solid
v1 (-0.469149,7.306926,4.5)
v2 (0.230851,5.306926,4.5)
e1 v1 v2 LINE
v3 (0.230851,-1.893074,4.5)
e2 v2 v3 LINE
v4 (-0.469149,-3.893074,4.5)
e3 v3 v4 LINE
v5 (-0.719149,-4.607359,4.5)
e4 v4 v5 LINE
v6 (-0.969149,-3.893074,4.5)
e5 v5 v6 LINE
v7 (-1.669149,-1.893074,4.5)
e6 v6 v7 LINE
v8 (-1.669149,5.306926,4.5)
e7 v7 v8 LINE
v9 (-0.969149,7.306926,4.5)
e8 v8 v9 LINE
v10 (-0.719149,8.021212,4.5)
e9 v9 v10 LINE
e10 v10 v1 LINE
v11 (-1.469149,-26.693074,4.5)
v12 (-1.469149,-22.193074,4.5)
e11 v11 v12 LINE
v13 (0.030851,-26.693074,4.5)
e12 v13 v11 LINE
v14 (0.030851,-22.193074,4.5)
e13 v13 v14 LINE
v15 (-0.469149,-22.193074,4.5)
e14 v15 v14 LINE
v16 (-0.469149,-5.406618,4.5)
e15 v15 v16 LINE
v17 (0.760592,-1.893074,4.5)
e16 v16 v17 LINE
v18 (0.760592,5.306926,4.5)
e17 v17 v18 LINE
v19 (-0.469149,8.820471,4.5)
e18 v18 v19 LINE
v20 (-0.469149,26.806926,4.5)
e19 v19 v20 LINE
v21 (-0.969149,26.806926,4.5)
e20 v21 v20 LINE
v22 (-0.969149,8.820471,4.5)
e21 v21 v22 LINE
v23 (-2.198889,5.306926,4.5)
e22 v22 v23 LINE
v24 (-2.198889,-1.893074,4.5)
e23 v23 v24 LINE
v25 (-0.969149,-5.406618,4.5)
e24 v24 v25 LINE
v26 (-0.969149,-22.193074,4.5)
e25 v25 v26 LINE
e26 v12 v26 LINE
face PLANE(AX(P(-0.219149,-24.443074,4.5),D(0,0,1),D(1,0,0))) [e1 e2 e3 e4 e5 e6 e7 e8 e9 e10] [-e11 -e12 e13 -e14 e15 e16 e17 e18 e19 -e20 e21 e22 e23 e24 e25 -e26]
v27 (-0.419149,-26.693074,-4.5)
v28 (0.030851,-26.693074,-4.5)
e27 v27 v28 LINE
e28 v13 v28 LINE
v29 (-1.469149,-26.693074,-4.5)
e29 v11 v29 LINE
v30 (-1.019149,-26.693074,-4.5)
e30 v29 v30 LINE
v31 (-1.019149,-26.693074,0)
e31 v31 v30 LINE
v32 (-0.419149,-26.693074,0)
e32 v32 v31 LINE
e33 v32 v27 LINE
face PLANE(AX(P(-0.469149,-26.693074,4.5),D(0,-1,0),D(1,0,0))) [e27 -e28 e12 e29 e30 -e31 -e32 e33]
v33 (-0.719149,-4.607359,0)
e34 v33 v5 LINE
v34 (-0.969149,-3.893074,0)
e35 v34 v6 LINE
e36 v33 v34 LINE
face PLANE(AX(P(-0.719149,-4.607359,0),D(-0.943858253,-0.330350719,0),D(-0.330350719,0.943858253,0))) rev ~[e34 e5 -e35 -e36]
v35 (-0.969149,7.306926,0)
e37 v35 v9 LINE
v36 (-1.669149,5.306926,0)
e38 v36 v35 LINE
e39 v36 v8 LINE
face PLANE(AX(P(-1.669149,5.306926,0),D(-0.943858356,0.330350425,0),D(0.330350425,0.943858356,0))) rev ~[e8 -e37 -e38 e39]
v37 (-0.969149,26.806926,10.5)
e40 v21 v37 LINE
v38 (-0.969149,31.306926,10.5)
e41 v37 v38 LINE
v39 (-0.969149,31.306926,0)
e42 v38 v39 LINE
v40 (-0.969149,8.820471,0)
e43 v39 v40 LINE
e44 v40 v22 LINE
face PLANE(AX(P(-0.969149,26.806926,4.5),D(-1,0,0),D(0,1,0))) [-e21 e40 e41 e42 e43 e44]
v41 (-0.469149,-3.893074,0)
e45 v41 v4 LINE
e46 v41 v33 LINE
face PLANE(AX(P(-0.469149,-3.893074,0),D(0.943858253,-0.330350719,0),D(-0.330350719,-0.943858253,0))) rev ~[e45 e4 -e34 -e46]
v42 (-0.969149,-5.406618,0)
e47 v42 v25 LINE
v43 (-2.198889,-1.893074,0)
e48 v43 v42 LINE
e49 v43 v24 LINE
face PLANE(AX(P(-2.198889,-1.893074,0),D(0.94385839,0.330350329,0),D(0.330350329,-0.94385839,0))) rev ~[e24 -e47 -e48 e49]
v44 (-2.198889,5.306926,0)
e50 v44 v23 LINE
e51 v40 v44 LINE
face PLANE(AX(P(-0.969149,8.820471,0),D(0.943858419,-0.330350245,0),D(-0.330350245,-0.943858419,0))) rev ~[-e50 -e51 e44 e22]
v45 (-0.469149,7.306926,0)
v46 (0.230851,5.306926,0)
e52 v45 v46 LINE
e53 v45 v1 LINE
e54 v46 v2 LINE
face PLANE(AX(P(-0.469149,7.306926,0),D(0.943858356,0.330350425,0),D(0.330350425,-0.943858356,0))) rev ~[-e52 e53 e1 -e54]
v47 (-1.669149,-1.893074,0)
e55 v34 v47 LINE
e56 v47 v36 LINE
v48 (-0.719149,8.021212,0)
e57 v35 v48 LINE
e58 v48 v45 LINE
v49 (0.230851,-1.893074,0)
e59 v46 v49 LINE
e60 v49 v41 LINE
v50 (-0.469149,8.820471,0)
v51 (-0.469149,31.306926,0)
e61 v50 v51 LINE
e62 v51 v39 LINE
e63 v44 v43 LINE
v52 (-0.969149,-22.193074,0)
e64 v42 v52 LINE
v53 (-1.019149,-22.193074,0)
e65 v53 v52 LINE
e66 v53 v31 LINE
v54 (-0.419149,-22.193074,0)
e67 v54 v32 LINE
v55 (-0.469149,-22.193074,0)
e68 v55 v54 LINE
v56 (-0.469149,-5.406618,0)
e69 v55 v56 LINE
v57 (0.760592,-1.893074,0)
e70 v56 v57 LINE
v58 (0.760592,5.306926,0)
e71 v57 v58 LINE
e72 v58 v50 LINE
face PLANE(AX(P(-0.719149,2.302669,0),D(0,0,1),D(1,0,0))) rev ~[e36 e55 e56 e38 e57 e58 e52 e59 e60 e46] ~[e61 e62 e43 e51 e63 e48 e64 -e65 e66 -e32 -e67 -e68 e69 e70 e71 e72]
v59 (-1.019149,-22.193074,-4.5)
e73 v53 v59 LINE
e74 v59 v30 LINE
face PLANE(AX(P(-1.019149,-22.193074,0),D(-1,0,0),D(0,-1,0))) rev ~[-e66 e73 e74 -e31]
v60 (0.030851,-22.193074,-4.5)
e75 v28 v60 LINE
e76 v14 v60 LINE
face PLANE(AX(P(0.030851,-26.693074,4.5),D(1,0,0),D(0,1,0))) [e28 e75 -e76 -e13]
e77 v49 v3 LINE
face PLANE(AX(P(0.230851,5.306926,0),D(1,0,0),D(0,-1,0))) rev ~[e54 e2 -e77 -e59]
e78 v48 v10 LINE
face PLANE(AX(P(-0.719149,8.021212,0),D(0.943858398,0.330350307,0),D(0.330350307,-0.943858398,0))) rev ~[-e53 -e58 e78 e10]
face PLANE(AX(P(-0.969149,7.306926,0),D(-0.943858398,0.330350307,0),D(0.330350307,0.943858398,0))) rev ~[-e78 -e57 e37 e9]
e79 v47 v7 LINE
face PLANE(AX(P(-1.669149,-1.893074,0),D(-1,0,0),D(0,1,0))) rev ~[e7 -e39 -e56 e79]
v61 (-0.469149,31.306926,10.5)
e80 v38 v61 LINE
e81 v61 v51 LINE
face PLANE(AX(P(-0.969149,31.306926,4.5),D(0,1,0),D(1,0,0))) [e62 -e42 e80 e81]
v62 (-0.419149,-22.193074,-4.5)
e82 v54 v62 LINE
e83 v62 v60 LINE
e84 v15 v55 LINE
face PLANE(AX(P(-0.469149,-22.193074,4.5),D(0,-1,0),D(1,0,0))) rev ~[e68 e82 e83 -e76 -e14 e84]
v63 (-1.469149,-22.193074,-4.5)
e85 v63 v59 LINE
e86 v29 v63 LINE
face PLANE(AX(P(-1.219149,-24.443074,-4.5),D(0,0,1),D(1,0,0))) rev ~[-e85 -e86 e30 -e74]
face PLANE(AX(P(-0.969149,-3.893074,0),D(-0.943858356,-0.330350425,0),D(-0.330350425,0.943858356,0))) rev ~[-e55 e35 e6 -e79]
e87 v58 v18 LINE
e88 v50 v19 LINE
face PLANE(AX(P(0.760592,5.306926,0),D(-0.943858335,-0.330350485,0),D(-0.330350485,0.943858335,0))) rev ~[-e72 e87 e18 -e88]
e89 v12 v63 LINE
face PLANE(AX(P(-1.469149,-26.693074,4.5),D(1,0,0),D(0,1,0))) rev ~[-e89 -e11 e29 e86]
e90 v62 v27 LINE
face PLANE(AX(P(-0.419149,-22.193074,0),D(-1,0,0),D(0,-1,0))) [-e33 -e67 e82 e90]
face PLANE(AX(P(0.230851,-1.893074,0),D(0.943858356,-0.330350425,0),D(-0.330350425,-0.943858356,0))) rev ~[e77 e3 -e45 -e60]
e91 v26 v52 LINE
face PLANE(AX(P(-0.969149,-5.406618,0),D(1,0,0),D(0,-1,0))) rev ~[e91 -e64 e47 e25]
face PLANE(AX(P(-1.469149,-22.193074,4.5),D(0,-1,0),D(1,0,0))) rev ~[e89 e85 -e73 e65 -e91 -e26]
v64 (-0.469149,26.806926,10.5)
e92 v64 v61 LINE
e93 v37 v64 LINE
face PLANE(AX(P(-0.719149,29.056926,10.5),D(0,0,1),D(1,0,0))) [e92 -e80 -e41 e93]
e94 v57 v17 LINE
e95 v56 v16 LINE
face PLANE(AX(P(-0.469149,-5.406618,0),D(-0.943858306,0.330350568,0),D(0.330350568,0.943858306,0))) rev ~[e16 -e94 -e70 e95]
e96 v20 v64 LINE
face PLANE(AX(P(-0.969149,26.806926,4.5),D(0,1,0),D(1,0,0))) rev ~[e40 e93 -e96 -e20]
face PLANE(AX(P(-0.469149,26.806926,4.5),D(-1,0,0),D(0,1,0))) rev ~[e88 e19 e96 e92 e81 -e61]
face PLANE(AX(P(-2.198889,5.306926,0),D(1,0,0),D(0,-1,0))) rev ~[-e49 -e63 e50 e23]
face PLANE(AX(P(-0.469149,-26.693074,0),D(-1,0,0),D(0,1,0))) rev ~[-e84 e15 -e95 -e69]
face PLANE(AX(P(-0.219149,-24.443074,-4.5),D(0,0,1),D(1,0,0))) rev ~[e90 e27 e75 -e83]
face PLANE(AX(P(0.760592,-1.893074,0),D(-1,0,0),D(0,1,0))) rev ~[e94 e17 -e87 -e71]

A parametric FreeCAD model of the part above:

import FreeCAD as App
import Part
import Sketcher

doc = App.newDocument("Part")
body = doc.addObject("PartDesign::Body", "Body")

# Sketch on XY plane
sketch1 = body.newObject("Sketcher::SketchObject", "Sketch")
sketch1.AttachmentSupport = (doc.getObject("XY_Plane"), [""])
sketch1.MapMode = "FlatFace"
sketch1.addGeometry([
    Part.LineSegment(App.Vector(-0.469149, 31.306926, 0), App.Vector(-0.969149, 31.306926, 0)),  # 0
    Part.LineSegment(App.Vector(-0.969149, 31.306926, 0), App.Vector(-0.969149, 8.820471, 0)),  # 1
    Part.LineSegment(App.Vector(-0.969149, 8.820471, 0), App.Vector(-2.198889, 5.306926, 0)),  # 2
    Part.LineSegment(App.Vector(-2.198889, 5.306926, 0), App.Vector(-2.198889, -1.893074, 0)),  # 3
    Part.LineSegment(App.Vector(-2.198889, -1.893074, 0), App.Vector(-0.969149, -5.406618, 0)),  # 4
    Part.LineSegment(App.Vector(-0.969149, -5.406618, 0), App.Vector(-0.969149, -26.693074, 0)),  # 5
    Part.LineSegment(App.Vector(-0.969149, -26.693074, 0), App.Vector(-0.469149, -26.693074, 0)),  # 6
    Part.LineSegment(App.Vector(-0.469149, -26.693074, 0), App.Vector(-0.469149, -5.406618, 0)),  # 7
    Part.LineSegment(App.Vector(-0.469149, -5.406618, 0), App.Vector(0.760592, -1.893074, 0)),  # 8
    Part.LineSegment(App.Vector(0.760592, -1.893074, 0), App.Vector(0.760592, 5.306926, 0)),  # 9
    Part.LineSegment(App.Vector(0.760592, 5.306926, 0), App.Vector(-0.469149, 8.820471, 0)),  # 10
    Part.LineSegment(App.Vector(-0.469149, 8.820471, 0), App.Vector(-0.469149, 31.306926, 0)),  # 11
    Part.LineSegment(App.Vector(-0.969149, -3.893074, 0), App.Vector(-1.669149, -1.893074, 0)),  # 12
    Part.LineSegment(App.Vector(-1.669149, -1.893074, 0), App.Vector(-1.669149, 5.306926, 0)),  # 13
    Part.LineSegment(App.Vector(-1.669149, 5.306926, 0), App.Vector(-0.969149, 7.306926, 0)),  # 14
    Part.LineSegment(App.Vector(-0.969149, 7.306926, 0), App.Vector(-0.719149, 8.021212, 0)),  # 15
    Part.LineSegment(App.Vector(-0.719149, 8.021212, 0), App.Vector(-0.469149, 7.306926, 0)),  # 16
    Part.LineSegment(App.Vector(-0.469149, 7.306926, 0), App.Vector(0.230851, 5.306926, 0)),  # 17
    Part.LineSegment(App.Vector(0.230851, 5.306926, 0), App.Vector(0.230851, -1.893074, 0)),  # 18
    Part.LineSegment(App.Vector(0.230851, -1.893074, 0), App.Vector(-0.469149, -3.893074, 0)),  # 19
    Part.LineSegment(App.Vector(-0.469149, -3.893074, 0), App.Vector(-0.719149, -4.607359, 0)),  # 20
    Part.LineSegment(App.Vector(-0.719149, -4.607359, 0), App.Vector(-0.969149, -3.893074, 0)),  # 21
], False)
sketch1.addConstraint([
    Sketcher.Constraint("Coincident", 0, 2, 1, 1),
    Sketcher.Constraint("Coincident", 1, 2, 2, 1),
    Sketcher.Constraint("Coincident", 2, 2, 3, 1),
    Sketcher.Constraint("Coincident", 3, 2, 4, 1),
    Sketcher.Constraint("Coincident", 4, 2, 5, 1),
    Sketcher.Constraint("Coincident", 5, 2, 6, 1),
    Sketcher.Constraint("Coincident", 6, 2, 7, 1),
    Sketcher.Constraint("Coincident", 7, 2, 8, 1),
    Sketcher.Constraint("Coincident", 8, 2, 9, 1),
    Sketcher.Constraint("Coincident", 9, 2, 10, 1),
    Sketcher.Constraint("Coincident", 10, 2, 11, 1),
    Sketcher.Constraint("Coincident", 11, 2, 0, 1),
    Sketcher.Constraint("Coincident", 12, 2, 13, 1),
    Sketcher.Constraint("Coincident", 13, 2, 14, 1),
    Sketcher.Constraint("Coincident", 14, 2, 15, 1),
    Sketcher.Constraint("Coincident", 15, 2, 16, 1),
    Sketcher.Constraint("Coincident", 16, 2, 17, 1),
    Sketcher.Constraint("Coincident", 17, 2, 18, 1),
    Sketcher.Constraint("Coincident", 18, 2, 19, 1),
    Sketcher.Constraint("Coincident", 19, 2, 20, 1),
    Sketcher.Constraint("Coincident", 20, 2, 21, 1),
    Sketcher.Constraint("Coincident", 21, 2, 12, 1),
    Sketcher.Constraint("Horizontal", 0),
    Sketcher.Constraint("Vertical", 1),
    Sketcher.Constraint("Vertical", 3),
    Sketcher.Constraint("Vertical", 5),
    Sketcher.Constraint("Horizontal", 6),
    Sketcher.Constraint("Vertical", 7),
    Sketcher.Constraint("Vertical", 9),
    Sketcher.Constraint("Vertical", 11),
    Sketcher.Constraint("Vertical", 13),
    Sketcher.Constraint("Vertical", 18),
    Sketcher.Constraint("Parallel", 2, 8),
    Sketcher.Constraint("Parallel", 4, 10),
    Sketcher.Constraint("Parallel", 10, 12),
    Sketcher.Constraint("Parallel", 8, 14),
    Sketcher.Constraint("Parallel", 14, 15),
    Sketcher.Constraint("Parallel", 12, 16),
    Sketcher.Constraint("Parallel", 16, 17),
    Sketcher.Constraint("Parallel", 15, 19),
    Sketcher.Constraint("Parallel", 19, 20),
    Sketcher.Constraint("Parallel", 17, 21),
    Sketcher.Constraint("Horizontal", 4, 2, 7, 2),
    Sketcher.Constraint("Horizontal", 3, 2, 8, 2),
    Sketcher.Constraint("Horizontal", 2, 2, 9, 2),
    Sketcher.Constraint("Horizontal", 1, 2, 10, 2),
    Sketcher.Constraint("Horizontal", 8, 2, 12, 2),
    Sketcher.Constraint("Horizontal", 9, 2, 13, 2),
    Sketcher.Constraint("Horizontal", 14, 2, 16, 2),
    Sketcher.Constraint("Horizontal", 13, 2, 17, 2),
    Sketcher.Constraint("Horizontal", 12, 2, 18, 2),
    Sketcher.Constraint("Horizontal", 19, 2, 21, 2),
    Sketcher.Constraint("Vertical", 1, 2, 4, 2),
    Sketcher.Constraint("Vertical", 7, 2, 10, 2),
    Sketcher.Constraint("Vertical", 5, 2, 14, 2),
    Sketcher.Constraint("Vertical", 11, 2, 16, 2),
    Sketcher.Constraint("Vertical", 16, 2, 19, 2),
    Sketcher.Constraint("DistanceX", 0, 2, 0, 1, 0.5),
    Sketcher.Constraint("DistanceY", 3, 2, 3, 1, 7.2),
    Sketcher.Constraint("DistanceY", 2, 2, 0, 2, 26.0),
    Sketcher.Constraint("DistanceY", 5, 2, 2, 2, 32.0),
    Sketcher.Constraint("DistanceY", 13, 2, 14, 2, 2.0),
    Sketcher.Constraint("DistanceX", 12, 2, 4, 2, 0.7),
    Sketcher.Constraint("DistanceY", 1, 2, 1, 1, 22.486455),
    Sketcher.Constraint("DistanceX", 0, 2, -1, 1, 0.969149),
    Sketcher.Constraint("DistanceY", -1, 1, 1, 2, 8.820471),
])
pad1 = body.newObject("PartDesign::Pad", "Pad")
pad1.Profile = sketch1
pad1.Length = 4.5

# Sketch on XY plane
sketch2 = body.newObject("Sketcher::SketchObject", "Sketch001")
sketch2.AttachmentSupport = (doc.getObject("XY_Plane"), [""])
sketch2.MapMode = "FlatFace"
sketch2.AttachmentOffset = App.Placement(App.Vector(0, 0, 4.5), App.Rotation())
sketch2.addGeometry([
    Part.LineSegment(App.Vector(-0.969149, 31.306926, 0), App.Vector(-0.969149, 26.806926, 0)),
    Part.LineSegment(App.Vector(-0.969149, 26.806926, 0), App.Vector(-0.469149, 26.806926, 0)),
    Part.LineSegment(App.Vector(-0.469149, 26.806926, 0), App.Vector(-0.469149, 31.306926, 0)),
    Part.LineSegment(App.Vector(-0.469149, 31.306926, 0), App.Vector(-0.969149, 31.306926, 0)),
], False)
sketch2.addConstraint([
    Sketcher.Constraint("Coincident", 0, 2, 1, 1),
    Sketcher.Constraint("Coincident", 1, 2, 2, 1),
    Sketcher.Constraint("Coincident", 2, 2, 3, 1),
    Sketcher.Constraint("Coincident", 3, 2, 0, 1),
    Sketcher.Constraint("Vertical", 0),
    Sketcher.Constraint("Horizontal", 1),
    Sketcher.Constraint("Vertical", 2),
    Sketcher.Constraint("Horizontal", 3),
    Sketcher.Constraint("DistanceX", 1, 1, 1, 2, 0.5),
    Sketcher.Constraint("DistanceY", 0, 2, 0, 1, 4.5),
    Sketcher.Constraint("DistanceX", 0, 2, -1, 1, 0.969149),
    Sketcher.Constraint("DistanceY", -1, 1, 0, 2, 26.806926),
])
pad2 = body.newObject("PartDesign::Pad", "Pad001")
pad2.Profile = sketch2
pad2.Length = 6

# Sketch on XY plane
sketch3 = body.newObject("Sketcher::SketchObject", "Sketch002")
sketch3.AttachmentSupport = (doc.getObject("XY_Plane"), [""])
sketch3.MapMode = "FlatFace"
sketch3.AttachmentOffset = App.Placement(App.Vector(0, 0, 4.5), App.Rotation())
sketch3.addGeometry([
    Part.LineSegment(App.Vector(-0.469149, -22.193074, 0), App.Vector(-0.469149, -26.693074, 0)),  # 0
    Part.LineSegment(App.Vector(-0.469149, -26.693074, 0), App.Vector(0.030851, -26.693074, 0)),  # 1
    Part.LineSegment(App.Vector(0.030851, -26.693074, 0), App.Vector(0.030851, -22.193074, 0)),  # 2
    Part.LineSegment(App.Vector(0.030851, -22.193074, 0), App.Vector(-0.469149, -22.193074, 0)),  # 3
    Part.LineSegment(App.Vector(-1.469149, -22.193074, 0), App.Vector(-1.469149, -26.693074, 0)),  # 4
    Part.LineSegment(App.Vector(-1.469149, -26.693074, 0), App.Vector(-0.969149, -26.693074, 0)),  # 5
    Part.LineSegment(App.Vector(-0.969149, -26.693074, 0), App.Vector(-0.969149, -22.193074, 0)),  # 6
    Part.LineSegment(App.Vector(-0.969149, -22.193074, 0), App.Vector(-1.469149, -22.193074, 0)),  # 7
], False)
sketch3.addConstraint([
    Sketcher.Constraint("Coincident", 0, 2, 1, 1),
    Sketcher.Constraint("Coincident", 1, 2, 2, 1),
    Sketcher.Constraint("Coincident", 2, 2, 3, 1),
    Sketcher.Constraint("Coincident", 3, 2, 0, 1),
    Sketcher.Constraint("Coincident", 4, 2, 5, 1),
    Sketcher.Constraint("Coincident", 5, 2, 6, 1),
    Sketcher.Constraint("Coincident", 6, 2, 7, 1),
    Sketcher.Constraint("Coincident", 7, 2, 4, 1),
    Sketcher.Constraint("Vertical", 0),
    Sketcher.Constraint("Horizontal", 1),
    Sketcher.Constraint("Vertical", 2),
    Sketcher.Constraint("Horizontal", 3),
    Sketcher.Constraint("Vertical", 4),
    Sketcher.Constraint("Horizontal", 5),
    Sketcher.Constraint("Vertical", 6),
    Sketcher.Constraint("Horizontal", 7),
    Sketcher.Constraint("Horizontal", 1, 2, 4, 2),
    Sketcher.Constraint("Horizontal", 3, 2, 6, 2),
    Sketcher.Constraint("Equal", 3, 5),
    Sketcher.Constraint("DistanceX", 1, 1, 1, 2, 0.5),
    Sketcher.Constraint("DistanceY", 0, 2, 0, 1, 4.5),
    Sketcher.Constraint("DistanceX", 4, 2, 0, 2, 1.0),
    Sketcher.Constraint("DistanceX", 0, 2, -1, 1, 0.469149),
    Sketcher.Constraint("DistanceY", 0, 2, -1, 1, 26.693074),
])
pad3 = body.newObject("PartDesign::Pad", "Pad002")
pad3.Profile = sketch3
pad3.Length = 9
pad3.Reversed = True

# Sketch on XY plane
sketch4 = body.newObject("Sketcher::SketchObject", "Sketch003")
sketch4.AttachmentSupport = (doc.getObject("XY_Plane"), [""])
sketch4.MapMode = "FlatFace"
sketch4.addGeometry([
    Part.LineSegment(App.Vector(-1.019149, -26.693074, 0), App.Vector(-1.019149, -22.193074, 0)),
    Part.LineSegment(App.Vector(-1.019149, -22.193074, 0), App.Vector(-0.419149, -22.193074, 0)),
    Part.LineSegment(App.Vector(-0.419149, -22.193074, 0), App.Vector(-0.419149, -26.693074, 0)),
    Part.LineSegment(App.Vector(-0.419149, -26.693074, 0), App.Vector(-1.019149, -26.693074, 0)),
], False)
sketch4.addConstraint([
    Sketcher.Constraint("Coincident", 0, 2, 1, 1),
    Sketcher.Constraint("Coincident", 1, 2, 2, 1),
    Sketcher.Constraint("Coincident", 2, 2, 3, 1),
    Sketcher.Constraint("Coincident", 3, 2, 0, 1),
    Sketcher.Constraint("Vertical", 0),
    Sketcher.Constraint("Horizontal", 1),
    Sketcher.Constraint("Vertical", 2),
    Sketcher.Constraint("Horizontal", 3),
    Sketcher.Constraint("DistanceX", 1, 1, 1, 2, 0.6),
    Sketcher.Constraint("DistanceY", 0, 1, 0, 2, 4.5),
    Sketcher.Constraint("DistanceX", 0, 2, -1, 1, 1.019149),
    Sketcher.Constraint("DistanceY", 0, 2, -1, 1, 22.193074),
])
pocket1 = body.newObject("PartDesign::Pocket", "Pocket")
pocket1.Profile = sketch4
pocket1.Length = 25

doc.recompute()
